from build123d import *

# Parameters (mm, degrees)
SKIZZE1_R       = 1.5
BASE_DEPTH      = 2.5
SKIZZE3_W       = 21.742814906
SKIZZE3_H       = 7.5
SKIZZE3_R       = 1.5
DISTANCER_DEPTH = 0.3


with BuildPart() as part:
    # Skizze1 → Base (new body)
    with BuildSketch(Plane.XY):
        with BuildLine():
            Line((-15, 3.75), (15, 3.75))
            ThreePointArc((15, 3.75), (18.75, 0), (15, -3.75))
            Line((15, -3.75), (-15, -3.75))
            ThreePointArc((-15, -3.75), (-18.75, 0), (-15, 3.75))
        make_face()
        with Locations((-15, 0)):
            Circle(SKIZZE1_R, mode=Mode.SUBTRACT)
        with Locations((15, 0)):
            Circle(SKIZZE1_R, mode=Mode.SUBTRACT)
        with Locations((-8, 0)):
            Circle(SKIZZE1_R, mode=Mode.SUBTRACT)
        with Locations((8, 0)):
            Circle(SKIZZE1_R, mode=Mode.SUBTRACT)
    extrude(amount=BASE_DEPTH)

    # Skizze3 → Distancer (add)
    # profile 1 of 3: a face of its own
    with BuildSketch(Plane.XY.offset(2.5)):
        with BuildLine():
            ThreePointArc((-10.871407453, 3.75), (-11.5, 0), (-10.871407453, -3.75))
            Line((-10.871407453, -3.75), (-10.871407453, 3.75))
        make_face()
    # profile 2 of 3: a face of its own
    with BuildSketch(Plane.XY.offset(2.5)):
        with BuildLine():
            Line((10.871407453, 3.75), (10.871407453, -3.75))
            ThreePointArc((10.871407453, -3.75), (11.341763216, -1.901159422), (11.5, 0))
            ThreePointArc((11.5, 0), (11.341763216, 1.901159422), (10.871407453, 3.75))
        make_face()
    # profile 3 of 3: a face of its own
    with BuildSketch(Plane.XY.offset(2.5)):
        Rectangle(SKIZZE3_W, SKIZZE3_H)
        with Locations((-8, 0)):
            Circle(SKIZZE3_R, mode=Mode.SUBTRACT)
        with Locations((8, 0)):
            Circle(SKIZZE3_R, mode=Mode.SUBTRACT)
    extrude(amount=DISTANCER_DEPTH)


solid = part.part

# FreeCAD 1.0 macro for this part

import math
import FreeCAD as App
import Part
import Sketcher

doc = App.newDocument("Part")
body = doc.addObject("PartDesign::Body", "Body")

# Sketch on XY plane
sketch1 = body.newObject("Sketcher::SketchObject", "Sketch")
sketch1.AttachmentSupport = (doc.getObject("XY_Plane"), [""])
sketch1.MapMode = "FlatFace"
sketch1.addGeometry(Part.LineSegment(App.Vector(15, 3.75, 0), App.Vector(-15, 3.75, 0)), False)
sketch1.addGeometry(Part.ArcOfCircle(Part.Circle(App.Vector(-15, 0, 0), App.Vector(0, 0, 1), 3.75), math.radians(90), math.radians(270)), False)
sketch1.addGeometry(Part.LineSegment(App.Vector(-15, -3.75, 0), App.Vector(15, -3.75, 0)), False)
sketch1.addGeometry(Part.ArcOfCircle(Part.Circle(App.Vector(15, 0, 0), App.Vector(0, 0, 1), 3.75), math.radians(-90), math.radians(90)), False)
sketch1.addGeometry(Part.Circle(App.Vector(15, 0, 0), App.Vector(0, 0, 1), 1.5), False)
sketch1.addGeometry(Part.Circle(App.Vector(8, 0, 0), App.Vector(0, 0, 1), 1.5), False)
sketch1.addGeometry(Part.Circle(App.Vector(-8, 0, 0), App.Vector(0, 0, 1), 1.5), False)
sketch1.addGeometry(Part.Circle(App.Vector(-15, 0, 0), App.Vector(0, 0, 1), 1.5), False)
sketch1.addConstraint(Sketcher.Constraint("Tangent", 0, 2, 1, 1))
sketch1.addConstraint(Sketcher.Constraint("Tangent", 1, 2, 2, 1))
sketch1.addConstraint(Sketcher.Constraint("Tangent", 2, 2, 3, 1))
sketch1.addConstraint(Sketcher.Constraint("Tangent", 3, 2, 0, 1))
sketch1.addConstraint(Sketcher.Constraint("Horizontal", 0))
sketch1.addConstraint(Sketcher.Constraint("Horizontal", 2))
sketch1.addConstraint(Sketcher.Constraint("Coincident", 4, 3, 3, 3))
sketch1.addConstraint(Sketcher.Constraint("Coincident", 7, 3, 1, 3))
sketch1.addConstraint(Sketcher.Constraint("Equal", 4, 5))
sketch1.addConstraint(Sketcher.Constraint("Equal", 5, 6))
sketch1.addConstraint(Sketcher.Constraint("Equal", 6, 7))
sketch1.addConstraint(Sketcher.Constraint("Symmetric", 1, 3, 3, 3, -1, 1))
sketch1.addConstraint(Sketcher.Constraint("Symmetric", 5, 3, 6, 3, -1, 1))
sketch1.addConstraint(Sketcher.Constraint("PointOnObject", 5, 3, -1))
sketch1.addConstraint(Sketcher.Constraint("Diameter", 4, 3.0))
sketch1.addConstraint(Sketcher.Constraint("DistanceX", 0, 2, 0, 1, 30.0))
sketch1.addConstraint(Sketcher.Constraint("Radius", 1, 3.75))
sketch1.addConstraint(Sketcher.Constraint("DistanceX", -1, 1, 5, 3, 8.0))
pad1 = body.newObject("PartDesign::Pad", "Pad")
pad1.Profile = sketch1
pad1.Length = 2.5

# Sketch on XY plane
sketch2 = body.newObject("Sketcher::SketchObject", "Sketch001")
sketch2.AttachmentSupport = (doc.getObject("XY_Plane"), [""])
sketch2.MapMode = "FlatFace"
sketch2.AttachmentOffset = App.Placement(App.Vector(0, 0, 2.5), App.Rotation())
sketch2.addGeometry(Part.ArcOfCircle(Part.Circle(App.Vector(0, 0, 0), App.Vector(0, 0, 1), 11.5), math.radians(160.968559), math.radians(199.031441)), False)
sketch2.addGeometry(Part.LineSegment(App.Vector(-10.871407, -3.75, 0), App.Vector(10.871407, -3.75, 0)), False)
sketch2.addGeometry(Part.ArcOfCircle(Part.Circle(App.Vector(0, 0, 0), App.Vector(0, 0, 1), 11.5), math.radians(-19.031441), math.radians(0)), False)
sketch2.addGeometry(Part.ArcOfCircle(Part.Circle(App.Vector(0, 0, 0), App.Vector(0, 0, 1), 11.5), math.radians(0), math.radians(19.031441)), False)
sketch2.addGeometry(Part.LineSegment(App.Vector(10.871407, 3.75, 0), App.Vector(-10.871407, 3.75, 0)), False)
sketch2.addGeometry(Part.Circle(App.Vector(8, 0, 0), App.Vector(0, 0, 1), 1.5), False)
sketch2.addGeometry(Part.Circle(App.Vector(-8, 0, 0), App.Vector(0, 0, 1), 1.5), False)
sketch2.addConstraint(Sketcher.Constraint("Coincident", 0, 2, 1, 1))
sketch2.addConstraint(Sketcher.Constraint("Coincident", 1, 2, 2, 1))
sketch2.addConstraint(Sketcher.Constraint("Tangent", 2, 2, 3, 1))
sketch2.addConstraint(Sketcher.Constraint("Coincident", 3, 2, 4, 1))
sketch2.addConstraint(Sketcher.Constraint("Coincident", 4, 2, 0, 1))
sketch2.addConstraint(Sketcher.Constraint("Horizontal", 1))
sketch2.addConstraint(Sketcher.Constraint("Horizontal", 4))
sketch2.addConstraint(Sketcher.Constraint("Coincident", 0, 3, -1, 1))
sketch2.addConstraint(Sketcher.Constraint("Coincident", 2, 3, -1, 1))
sketch2.addConstraint(Sketcher.Constraint("Equal", 0, 2))
sketch2.addConstraint(Sketcher.Constraint("Equal", 2, 3))
sketch2.addConstraint(Sketcher.Constraint("Equal", 5, 6))
sketch2.addConstraint(Sketcher.Constraint("Symmetric", 5, 3, 6, 3, -1, 1))
sketch2.addConstraint(Sketcher.Constraint("PointOnObject", 5, 3, -1))
sketch2.addConstraint(Sketcher.Constraint("PointOnObject", 2, 2, -1))
sketch2.addConstraint(Sketcher.Constraint("Vertical", 1, 2, 3, 2))
sketch2.addConstraint(Sketcher.Constraint("Diameter", 5, 3.0))
sketch2.addConstraint(Sketcher.Constraint("Radius", 0, 11.5))
sketch2.addConstraint(Sketcher.Constraint("DistanceX", -1, 1, 5, 3, 8.0))
sketch2.addConstraint(Sketcher.Constraint("DistanceY", 1, 2, 3, 2, 7.5))
pad2 = body.newObject("PartDesign::Pad", "Pad001")
pad2.Profile = sketch2
pad2.Length = 0.3

doc.recompute()
